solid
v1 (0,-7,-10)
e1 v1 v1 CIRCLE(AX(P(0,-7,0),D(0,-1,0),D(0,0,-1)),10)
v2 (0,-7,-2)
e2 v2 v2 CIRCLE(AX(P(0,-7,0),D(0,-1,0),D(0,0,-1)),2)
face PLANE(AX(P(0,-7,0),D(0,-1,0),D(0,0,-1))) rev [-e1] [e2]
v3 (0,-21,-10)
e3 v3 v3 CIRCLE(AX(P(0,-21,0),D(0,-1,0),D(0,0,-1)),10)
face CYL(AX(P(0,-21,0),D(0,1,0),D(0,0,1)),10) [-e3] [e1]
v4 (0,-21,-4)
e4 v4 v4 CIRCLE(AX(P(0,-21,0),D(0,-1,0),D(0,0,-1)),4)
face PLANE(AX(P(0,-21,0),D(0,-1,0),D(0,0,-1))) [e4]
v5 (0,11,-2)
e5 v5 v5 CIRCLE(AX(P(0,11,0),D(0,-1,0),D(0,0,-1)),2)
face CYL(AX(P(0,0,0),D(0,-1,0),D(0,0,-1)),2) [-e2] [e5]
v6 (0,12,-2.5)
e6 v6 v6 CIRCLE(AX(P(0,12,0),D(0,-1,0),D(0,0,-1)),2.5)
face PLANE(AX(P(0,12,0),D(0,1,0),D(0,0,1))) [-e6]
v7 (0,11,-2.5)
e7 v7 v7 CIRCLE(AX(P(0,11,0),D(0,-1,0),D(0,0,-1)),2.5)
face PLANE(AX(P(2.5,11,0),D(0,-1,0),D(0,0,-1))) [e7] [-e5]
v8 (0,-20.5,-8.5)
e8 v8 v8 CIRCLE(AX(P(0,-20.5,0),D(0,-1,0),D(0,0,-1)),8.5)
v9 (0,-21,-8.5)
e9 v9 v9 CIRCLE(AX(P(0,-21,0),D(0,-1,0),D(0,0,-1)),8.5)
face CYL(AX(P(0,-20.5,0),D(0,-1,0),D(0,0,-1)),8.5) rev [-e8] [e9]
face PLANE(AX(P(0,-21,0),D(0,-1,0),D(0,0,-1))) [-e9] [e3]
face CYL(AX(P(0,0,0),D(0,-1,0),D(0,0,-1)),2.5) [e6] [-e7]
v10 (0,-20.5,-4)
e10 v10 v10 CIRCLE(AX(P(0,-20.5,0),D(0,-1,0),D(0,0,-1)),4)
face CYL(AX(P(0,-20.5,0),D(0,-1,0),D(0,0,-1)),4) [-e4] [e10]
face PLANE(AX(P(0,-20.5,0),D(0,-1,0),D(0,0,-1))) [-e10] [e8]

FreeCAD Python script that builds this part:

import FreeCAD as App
import Part
import Sketcher


def add_polygon(sketch, points):
    """Adds a closed chain of lines whose ends are joined by coincident constraints."""
    first, n = sketch.GeometryCount, len(points)
    for a, b in zip(points, points[1:] + points[:1]):
        sketch.addGeometry(Part.LineSegment(App.Vector(*a, 0), App.Vector(*b, 0)), False)
    for i in range(n):
        sketch.addConstraint(Sketcher.Constraint("Coincident", first + i, 2, first + (i + 1) % n, 1))

doc = App.newDocument("Part")
body = doc.addObject("PartDesign::Body", "Body")

sketch1 = doc.addObject("Sketcher::SketchObject", "Sketch")
body.addObject(sketch1)
sketch1.AttachmentSupport = (doc.XY_Plane, [""])
sketch1.MapMode = "FlatFace"
add_polygon(sketch1, [(2.5, 12), (0, 12), (0, 0), (2, 0), (2, 11), (2.5, 11)])
sketch1.addConstraint(Sketcher.Constraint("Horizontal", 0))
sketch1.addConstraint(Sketcher.Constraint("Vertical", 1))
sketch1.addConstraint(Sketcher.Constraint("Horizontal", 2))
sketch1.addConstraint(Sketcher.Constraint("Vertical", 3))
sketch1.addConstraint(Sketcher.Constraint("Horizontal", 4))
sketch1.addConstraint(Sketcher.Constraint("Vertical", 5))
sketch1.addConstraint(Sketcher.Constraint("Coincident", 1, 2, -1, 1))
sketch1.addConstraint(Sketcher.Constraint("DistanceX", 2, 1, 2, 2, 2.0))
sketch1.addConstraint(Sketcher.Constraint("DistanceY", 1, 2, 1, 1, 12.0))
sketch1.addConstraint(Sketcher.Constraint("DistanceY", 3, 1, 3, 2, 11.0))
sketch1.addConstraint(Sketcher.Constraint("DistanceX", 0, 2, 0, 1, 2.5))
revolution = doc.addObject("PartDesign::Revolution", "Revolution")
body.addObject(revolution)
revolution.Profile = sketch1
revolution.ReferenceAxis = (sketch1, ["V_Axis"])
revolution.Angle = 360

sketch2 = doc.addObject("Sketcher::SketchObject", "Sketch001")
body.addObject(sketch2)
sketch2.AttachmentSupport = (doc.XZ_Plane, [""])
sketch2.MapMode = "FlatFace"
sketch2.AttachmentOffset = App.Placement(App.Vector(0, 0, 7), App.Rotation())
sketch2.addGeometry(Part.Circle(App.Vector(0, 0, 0), App.Vector(0, 0, 1), 2), False)
sketch2.addConstraint(Sketcher.Constraint("Coincident", 0, 3, -1, 1))
sketch2.addConstraint(Sketcher.Constraint("Diameter", 0, 4.0))
pad1 = doc.addObject("PartDesign::Pad", "Pad")
body.addObject(pad1)
pad1.Profile = sketch2
pad1.Length = 18
pad1.Reversed = True

sketch3 = doc.addObject("Sketcher::SketchObject", "Sketch002")
body.addObject(sketch3)
sketch3.AttachmentSupport = (doc.XZ_Plane, [""])
sketch3.MapMode = "FlatFace"
sketch3.AttachmentOffset = App.Placement(App.Vector(0, 0, 7), App.Rotation())
sketch3.addGeometry(Part.Circle(App.Vector(0, 0, 0), App.Vector(0, 0, 1), 10), False)
sketch3.addConstraint(Sketcher.Constraint("Coincident", 0, 3, -1, 1))
sketch3.addConstraint(Sketcher.Constraint("Diameter", 0, 20.0))
pad2 = doc.addObject("PartDesign::Pad", "Pad001")
body.addObject(pad2)
pad2.Profile = sketch3
pad2.Length = 14

sketch4 = doc.addObject("Sketcher::SketchObject", "Sketch003")
body.addObject(sketch4)
sketch4.AttachmentSupport = (doc.XZ_Plane, [""])
sketch4.MapMode = "FlatFace"
sketch4.AttachmentOffset = App.Placement(App.Vector(0, 0, 21), App.Rotation())
sketch4.addGeometry(Part.Circle(App.Vector(0, 0, 0), App.Vector(0, 0, 1), 8.5), False)
sketch4.addGeometry(Part.Circle(App.Vector(0, 0, 0), App.Vector(0, 0, 1), 4), False)
sketch4.addConstraint(Sketcher.Constraint("Coincident", 0, 3, -1, 1))
sketch4.addConstraint(Sketcher.Constraint("Coincident", 1, 3, -1, 1))
sketch4.addConstraint(Sketcher.Constraint("Diameter", 0, 17.0))
sketch4.addConstraint(Sketcher.Constraint("Diameter", 1, 8.0))
pocket1 = doc.addObject("PartDesign::Pocket", "Pocket")
body.addObject(pocket1)
pocket1.Profile = sketch4
pocket1.Length = 0.5

doc.recompute()
